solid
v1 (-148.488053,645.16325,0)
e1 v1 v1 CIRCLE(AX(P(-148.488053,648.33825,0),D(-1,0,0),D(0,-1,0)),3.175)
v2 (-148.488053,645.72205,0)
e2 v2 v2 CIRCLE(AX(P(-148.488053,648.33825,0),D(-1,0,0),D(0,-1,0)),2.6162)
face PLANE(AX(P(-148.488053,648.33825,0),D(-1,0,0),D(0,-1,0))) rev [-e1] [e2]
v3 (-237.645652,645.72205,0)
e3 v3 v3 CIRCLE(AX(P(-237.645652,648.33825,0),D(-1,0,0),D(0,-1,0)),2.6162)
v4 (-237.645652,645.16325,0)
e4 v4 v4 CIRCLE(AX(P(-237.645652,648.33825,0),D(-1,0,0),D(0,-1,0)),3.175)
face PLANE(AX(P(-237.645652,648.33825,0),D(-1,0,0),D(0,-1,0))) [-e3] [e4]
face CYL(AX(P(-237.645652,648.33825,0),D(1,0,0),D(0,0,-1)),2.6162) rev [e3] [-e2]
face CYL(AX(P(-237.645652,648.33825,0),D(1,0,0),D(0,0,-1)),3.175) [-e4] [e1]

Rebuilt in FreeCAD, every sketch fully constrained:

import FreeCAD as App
import Part
import Sketcher
from FreeCAD import Vector
Q = App.Units.Quantity

doc = App.newDocument("Part")
body = doc.addObject("PartDesign::Body", "Body")

sketch1 = body.newObject("Sketcher::SketchObject", "Sketch")
sketch1.AttachmentSupport = (doc.getObject("YZ_Plane"), [""])
sketch1.MapMode = "FlatFace"
sketch1.AttachmentOffset = App.Placement(Vector(0, 0, -148.488053), App.Rotation())
sketch1.addGeometry([
    Part.Circle(Vector(648.33825, 0, 0), Vector(0, 0, 1), 3.175),
    Part.Circle(Vector(648.33825, 0, 0), Vector(0, 0, 1), 2.6162),
], False)
sketch1.addConstraint([
    Sketcher.Constraint("Coincident", 1, 3, 0, 3),
    Sketcher.Constraint("PointOnObject", 0, 3, -1),
    Sketcher.Constraint("Diameter", 0, Q("0.25 in")),
    Sketcher.Constraint("Diameter", 1, Q("0.206 in")),
    Sketcher.Constraint("DistanceX", -1, 1, 0, 3, Q("648.33825 mm")),
])
pad1 = body.newObject("PartDesign::Pad", "Pad")
pad1.Profile = sketch1
pad1.Length = 89.157599
pad1.Reversed = True

doc.recompute()
